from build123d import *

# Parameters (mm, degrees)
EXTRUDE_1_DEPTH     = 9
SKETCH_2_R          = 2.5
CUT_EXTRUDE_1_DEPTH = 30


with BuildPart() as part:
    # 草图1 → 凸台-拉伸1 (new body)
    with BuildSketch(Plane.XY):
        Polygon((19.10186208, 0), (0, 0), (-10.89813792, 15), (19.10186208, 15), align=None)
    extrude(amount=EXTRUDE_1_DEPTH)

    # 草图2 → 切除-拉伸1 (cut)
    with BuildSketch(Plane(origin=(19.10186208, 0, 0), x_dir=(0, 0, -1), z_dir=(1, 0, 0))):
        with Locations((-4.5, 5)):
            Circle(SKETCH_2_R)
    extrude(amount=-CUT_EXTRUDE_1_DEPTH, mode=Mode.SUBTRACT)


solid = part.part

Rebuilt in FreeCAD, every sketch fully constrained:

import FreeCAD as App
import Part
import Sketcher

V = App.Vector
Q = App.Units.Quantity

doc = App.newDocument("Part")
body = doc.addObject("PartDesign::Body", "Body")

# Sketch on XY plane
sketch1 = body.newObject("Sketcher::SketchObject", "Sketch")
sketch1.AttachmentSupport = (doc.getObject("XY_Plane"), [""])
sketch1.MapMode = "FlatFace"
sketch1.addGeometry(Part.LineSegment(V(0, 0, 0), V(19, 0, 0)), False)
sketch1.addGeometry(Part.LineSegment(V(19, 0, 0), V(19, 15, 0)), False)
sketch1.addGeometry(Part.LineSegment(V(19, 15, 0), V(-11, 15, 0)), False)
sketch1.addGeometry(Part.LineSegment(V(-11, 15, 0), V(0, 0, 0)), False)
sketch1.addConstraint(Sketcher.Constraint("Coincident", 0, 2, 1, 1))
sketch1.addConstraint(Sketcher.Constraint("Coincident", 1, 2, 2, 1))
sketch1.addConstraint(Sketcher.Constraint("Coincident", 2, 2, 3, 1))
sketch1.addConstraint(Sketcher.Constraint("Coincident", 3, 2, 0, 1))
sketch1.addConstraint(Sketcher.Constraint("Horizontal", 0))
sketch1.addConstraint(Sketcher.Constraint("Vertical", 1))
sketch1.addConstraint(Sketcher.Constraint("Horizontal", 2))
sketch1.addConstraint(Sketcher.Constraint("Coincident", 3, 2, -1, 1))
sketch1.addConstraint(Sketcher.Constraint("DistanceX", 2, 2, 2, 1, Q("30 mm")))
sketch1.addConstraint(Sketcher.Constraint("DistanceY", 1, 1, 1, 2, Q("15 mm")))
sketch1.addConstraint(Sketcher.Constraint("Angle", 3, Q("-54 deg")))
pad1 = body.newObject("PartDesign::Pad", "Pad")
pad1.Profile = sketch1
pad1.Length = 9

# Sketch on YZ plane
sketch2 = body.newObject("Sketcher::SketchObject", "Sketch001")
sketch2.AttachmentSupport = (doc.getObject("YZ_Plane"), [""])
sketch2.MapMode = "FlatFace"
sketch2.AttachmentOffset = App.Placement(V(0, 0, 19.101862), App.Rotation())
sketch2.addGeometry(Part.Circle(V(5, 4.5, 0), V(0, 0, 1), 2.5), False)
sketch2.addConstraint(Sketcher.Constraint("Diameter", 0, Q("5 mm")))
sketch2.addConstraint(Sketcher.Constraint("DistanceX", -1, 1, 0, 3, Q("5 mm")))
sketch2.addConstraint(Sketcher.Constraint("DistanceY", -1, 1, 0, 3, Q("4.5 mm")))
pocket1 = body.newObject("PartDesign::Pocket", "Pocket")
pocket1.Profile = sketch2
pocket1.Length = 30

doc.recompute()
